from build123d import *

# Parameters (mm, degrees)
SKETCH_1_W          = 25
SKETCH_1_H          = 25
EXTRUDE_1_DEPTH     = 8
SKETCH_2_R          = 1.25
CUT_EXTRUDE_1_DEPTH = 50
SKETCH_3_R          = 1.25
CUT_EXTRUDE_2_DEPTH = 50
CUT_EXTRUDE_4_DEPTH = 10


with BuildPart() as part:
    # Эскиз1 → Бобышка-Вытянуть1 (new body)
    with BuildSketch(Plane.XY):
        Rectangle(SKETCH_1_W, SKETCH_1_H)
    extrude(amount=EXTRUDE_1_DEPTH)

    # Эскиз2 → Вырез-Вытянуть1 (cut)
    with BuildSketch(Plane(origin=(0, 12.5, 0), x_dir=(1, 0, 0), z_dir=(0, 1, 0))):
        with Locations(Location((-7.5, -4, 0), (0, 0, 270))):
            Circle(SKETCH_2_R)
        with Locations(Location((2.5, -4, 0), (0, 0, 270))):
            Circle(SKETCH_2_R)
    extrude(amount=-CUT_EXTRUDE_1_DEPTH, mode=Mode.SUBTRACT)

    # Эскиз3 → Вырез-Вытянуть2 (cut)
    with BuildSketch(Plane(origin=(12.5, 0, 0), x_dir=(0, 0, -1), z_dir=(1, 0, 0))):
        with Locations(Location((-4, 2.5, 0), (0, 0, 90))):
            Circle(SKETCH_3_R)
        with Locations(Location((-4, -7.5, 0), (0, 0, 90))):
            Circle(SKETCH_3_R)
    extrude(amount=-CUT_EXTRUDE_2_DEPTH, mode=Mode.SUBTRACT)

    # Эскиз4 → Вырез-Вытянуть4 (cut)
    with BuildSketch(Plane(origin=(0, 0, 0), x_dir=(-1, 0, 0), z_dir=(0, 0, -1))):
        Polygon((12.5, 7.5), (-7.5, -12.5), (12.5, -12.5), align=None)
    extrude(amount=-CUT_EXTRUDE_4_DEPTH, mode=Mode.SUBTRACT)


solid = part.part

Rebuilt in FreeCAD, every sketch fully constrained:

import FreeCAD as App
import Part
import Sketcher
Q = App.Units.Quantity

doc = App.newDocument("Part")
body = doc.addObject("PartDesign::Body", "Body")

sketch1 = body.newObject("Sketcher::SketchObject", "Sketch")
sketch1.AttachmentSupport = (doc.getObject("XY_Plane"), [""])
sketch1.MapMode = "FlatFace"
sketch1.addGeometry([
    Part.LineSegment(App.Vector(-12, 12, 0), App.Vector(-12, -12, 0)),
    Part.LineSegment(App.Vector(-12, -12, 0), App.Vector(12, -12, 0)),
    Part.LineSegment(App.Vector(12, -12, 0), App.Vector(12, 12, 0)),
    Part.LineSegment(App.Vector(12, 12, 0), App.Vector(-12, 12, 0)),
], False)
sketch1.addConstraint([
    Sketcher.Constraint("Coincident", 0, 2, 1, 1),
    Sketcher.Constraint("Coincident", 1, 2, 2, 1),
    Sketcher.Constraint("Coincident", 2, 2, 3, 1),
    Sketcher.Constraint("Coincident", 3, 2, 0, 1),
    Sketcher.Constraint("Vertical", 0),
    Sketcher.Constraint("Horizontal", 1),
    Sketcher.Constraint("Vertical", 2),
    Sketcher.Constraint("Horizontal", 3),
    Sketcher.Constraint("Symmetric", 0, 2, 2, 2, -1, 1),
    Sketcher.Constraint("Equal", 3, 0),
    Sketcher.Constraint("DistanceX", 1, 1, 1, 2, Q("25 mm")),
])
pad1 = body.newObject("PartDesign::Pad", "Pad")
pad1.Profile = sketch1
pad1.Length = 8

sketch2 = body.newObject("Sketcher::SketchObject", "Sketch001")
sketch2.AttachmentSupport = (doc.getObject("XZ_Plane"), [""])
sketch2.MapMode = "FlatFace"
sketch2.AttachmentOffset = App.Placement(App.Vector(0, 0, -12.5), App.Rotation())
sketch2.addGeometry([
    Part.Circle(App.Vector(-7.5, 4, 0), App.Vector(0, 0, 1), 1.2),
    Part.Circle(App.Vector(2.5, 4, 0), App.Vector(0, 0, 1), 1.2),
], False)
sketch2.addConstraint([
    Sketcher.Constraint("Equal", 0, 1),
    Sketcher.Constraint("Horizontal", 0, 3, 1, 3),
    Sketcher.Constraint("Diameter", 0, Q("2.5 mm")),
    Sketcher.Constraint("DistanceY", -1, 1, 0, 3, Q("4 mm")),
    Sketcher.Constraint("DistanceX", 0, 3, 1, 3, Q("10 mm")),
    Sketcher.Constraint("DistanceX", 0, 3, -1, 1, Q("7.5 mm")),
])
pocket1 = body.newObject("PartDesign::Pocket", "Pocket")
pocket1.Profile = sketch2
pocket1.Length = 50
pocket1.Reversed = True

sketch3 = body.newObject("Sketcher::SketchObject", "Sketch002")
sketch3.AttachmentSupport = (doc.getObject("YZ_Plane"), [""])
sketch3.MapMode = "FlatFace"
sketch3.AttachmentOffset = App.Placement(App.Vector(0, 0, 12.5), App.Rotation())
sketch3.addGeometry([
    Part.Circle(App.Vector(2.5, 4, 0), App.Vector(0, 0, 1), 1.2),
    Part.Circle(App.Vector(-7.5, 4, 0), App.Vector(0, 0, 1), 1.2),
], False)
sketch3.addConstraint([
    Sketcher.Constraint("Equal", 0, 1),
    Sketcher.Constraint("Horizontal", 0, 3, 1, 3),
    Sketcher.Constraint("Diameter", 0, Q("2.5 mm")),
    Sketcher.Constraint("DistanceY", -1, 1, 0, 3, Q("4 mm")),
    Sketcher.Constraint("DistanceX", 1, 3, 0, 3, Q("10 mm")),
    Sketcher.Constraint("DistanceX", -1, 1, 0, 3, Q("2.5 mm")),
])
pocket2 = body.newObject("PartDesign::Pocket", "Pocket001")
pocket2.Profile = sketch3
pocket2.Length = 50

sketch4 = body.newObject("Sketcher::SketchObject", "Sketch003")
sketch4.AttachmentSupport = (doc.getObject("XY_Plane"), [""])
sketch4.MapMode = "FlatFace"
sketch4.addGeometry([
    Part.LineSegment(App.Vector(-12, 8, 0), App.Vector(8, -12, 0)),
    Part.LineSegment(App.Vector(8, -12, 0), App.Vector(-12, -12, 0)),
    Part.LineSegment(App.Vector(-12, -12, 0), App.Vector(-12, 8, 0)),
], False)
sketch4.addConstraint([
    Sketcher.Constraint("Coincident", 0, 2, 1, 1),
    Sketcher.Constraint("Coincident", 1, 2, 2, 1),
    Sketcher.Constraint("Coincident", 2, 2, 0, 1),
    Sketcher.Constraint("Horizontal", 1),
    Sketcher.Constraint("Vertical", 2),
    Sketcher.Constraint("Equal", 1, 2),
    Sketcher.Constraint("DistanceX", 1, 2, 1, 1, Q("20 mm")),
    Sketcher.Constraint("DistanceX", -1, 1, 0, 2, Q("7.5 mm")),
    Sketcher.Constraint("DistanceY", 0, 2, -1, 1, Q("12.5 mm")),
])
pocket3 = body.newObject("PartDesign::Pocket", "Pocket002")
pocket3.Profile = sketch4
pocket3.Length = 10
pocket3.Reversed = True

doc.recompute()
